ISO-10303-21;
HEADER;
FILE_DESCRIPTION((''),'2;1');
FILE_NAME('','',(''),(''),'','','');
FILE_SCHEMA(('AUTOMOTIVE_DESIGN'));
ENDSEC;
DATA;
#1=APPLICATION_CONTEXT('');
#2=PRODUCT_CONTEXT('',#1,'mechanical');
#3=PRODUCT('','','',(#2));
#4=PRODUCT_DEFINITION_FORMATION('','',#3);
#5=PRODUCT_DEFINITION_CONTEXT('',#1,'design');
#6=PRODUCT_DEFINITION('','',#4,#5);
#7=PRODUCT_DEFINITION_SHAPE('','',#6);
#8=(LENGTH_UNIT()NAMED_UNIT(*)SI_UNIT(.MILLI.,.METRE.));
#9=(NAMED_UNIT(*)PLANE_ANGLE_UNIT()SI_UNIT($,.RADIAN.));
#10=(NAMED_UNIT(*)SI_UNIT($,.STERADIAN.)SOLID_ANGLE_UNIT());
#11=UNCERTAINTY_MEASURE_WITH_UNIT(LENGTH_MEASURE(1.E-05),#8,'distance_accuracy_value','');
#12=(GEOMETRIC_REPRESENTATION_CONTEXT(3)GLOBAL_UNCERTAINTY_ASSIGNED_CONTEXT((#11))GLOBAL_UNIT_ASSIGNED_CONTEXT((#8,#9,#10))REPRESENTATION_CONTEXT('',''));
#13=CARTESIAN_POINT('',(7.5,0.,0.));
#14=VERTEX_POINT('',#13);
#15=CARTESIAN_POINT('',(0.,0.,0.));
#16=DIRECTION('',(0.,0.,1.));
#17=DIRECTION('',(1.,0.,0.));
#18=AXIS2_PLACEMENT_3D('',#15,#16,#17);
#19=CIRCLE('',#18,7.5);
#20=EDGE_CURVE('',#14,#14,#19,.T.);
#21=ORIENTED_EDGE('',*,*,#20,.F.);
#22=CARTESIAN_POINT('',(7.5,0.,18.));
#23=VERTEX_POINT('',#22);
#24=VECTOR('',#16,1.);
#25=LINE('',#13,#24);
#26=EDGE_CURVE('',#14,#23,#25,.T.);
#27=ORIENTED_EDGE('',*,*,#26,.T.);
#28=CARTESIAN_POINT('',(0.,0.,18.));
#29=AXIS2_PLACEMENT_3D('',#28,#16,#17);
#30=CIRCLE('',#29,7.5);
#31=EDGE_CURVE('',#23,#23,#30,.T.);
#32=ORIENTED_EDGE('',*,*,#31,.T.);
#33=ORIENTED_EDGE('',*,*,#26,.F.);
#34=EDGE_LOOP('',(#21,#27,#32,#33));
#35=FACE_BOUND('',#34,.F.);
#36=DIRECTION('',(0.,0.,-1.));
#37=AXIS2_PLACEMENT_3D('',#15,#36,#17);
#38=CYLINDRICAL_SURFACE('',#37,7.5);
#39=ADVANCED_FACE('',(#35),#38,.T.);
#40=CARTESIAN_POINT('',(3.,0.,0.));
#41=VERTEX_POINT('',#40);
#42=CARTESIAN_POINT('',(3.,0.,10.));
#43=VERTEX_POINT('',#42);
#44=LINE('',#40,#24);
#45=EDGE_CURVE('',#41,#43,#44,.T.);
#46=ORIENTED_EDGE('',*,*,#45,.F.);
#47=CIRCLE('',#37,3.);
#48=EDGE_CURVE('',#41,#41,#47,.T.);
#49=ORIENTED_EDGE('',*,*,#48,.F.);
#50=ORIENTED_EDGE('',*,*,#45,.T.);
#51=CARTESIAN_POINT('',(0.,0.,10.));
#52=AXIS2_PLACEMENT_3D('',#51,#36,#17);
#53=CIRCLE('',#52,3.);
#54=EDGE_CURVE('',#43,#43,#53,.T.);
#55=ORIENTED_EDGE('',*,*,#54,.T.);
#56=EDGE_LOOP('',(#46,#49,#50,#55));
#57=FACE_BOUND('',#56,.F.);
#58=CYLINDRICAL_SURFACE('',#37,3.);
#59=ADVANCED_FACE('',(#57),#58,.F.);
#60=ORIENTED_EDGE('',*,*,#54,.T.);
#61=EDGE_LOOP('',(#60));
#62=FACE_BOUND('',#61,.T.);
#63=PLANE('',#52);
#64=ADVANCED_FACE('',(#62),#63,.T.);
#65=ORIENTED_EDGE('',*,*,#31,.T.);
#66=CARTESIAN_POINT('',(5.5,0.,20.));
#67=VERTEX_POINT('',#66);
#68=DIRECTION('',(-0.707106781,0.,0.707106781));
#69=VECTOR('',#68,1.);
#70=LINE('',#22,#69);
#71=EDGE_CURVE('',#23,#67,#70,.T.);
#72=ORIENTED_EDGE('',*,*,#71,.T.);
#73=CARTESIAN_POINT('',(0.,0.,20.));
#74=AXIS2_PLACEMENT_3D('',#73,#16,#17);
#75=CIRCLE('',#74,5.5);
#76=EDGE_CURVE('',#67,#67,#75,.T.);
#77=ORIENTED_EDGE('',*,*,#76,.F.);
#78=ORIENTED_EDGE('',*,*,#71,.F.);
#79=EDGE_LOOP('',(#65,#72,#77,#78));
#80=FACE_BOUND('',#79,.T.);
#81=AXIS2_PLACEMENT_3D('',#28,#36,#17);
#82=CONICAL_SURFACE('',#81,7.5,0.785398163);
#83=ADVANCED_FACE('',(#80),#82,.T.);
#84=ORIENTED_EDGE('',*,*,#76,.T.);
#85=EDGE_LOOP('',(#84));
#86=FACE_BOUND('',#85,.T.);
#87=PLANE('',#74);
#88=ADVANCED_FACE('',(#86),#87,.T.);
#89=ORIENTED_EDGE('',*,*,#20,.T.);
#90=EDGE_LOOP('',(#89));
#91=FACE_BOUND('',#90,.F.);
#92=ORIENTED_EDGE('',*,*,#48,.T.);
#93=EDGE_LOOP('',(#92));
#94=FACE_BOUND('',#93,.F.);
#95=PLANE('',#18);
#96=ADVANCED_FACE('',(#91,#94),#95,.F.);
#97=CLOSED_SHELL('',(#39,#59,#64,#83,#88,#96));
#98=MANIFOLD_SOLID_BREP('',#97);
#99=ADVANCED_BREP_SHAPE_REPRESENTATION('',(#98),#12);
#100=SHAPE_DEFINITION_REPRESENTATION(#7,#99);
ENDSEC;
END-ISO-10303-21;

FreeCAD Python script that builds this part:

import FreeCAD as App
import Part
import Sketcher

V = App.Vector
Q = App.Units.Quantity


def edges_at(feature, points):
    """Names of the edges that pass closest to the given points."""
    edges = feature.Shape.Edges
    near = lambda p: min(range(len(edges)), key=lambda i: edges[i].distToShape(Part.Vertex(*p))[0])
    return sorted({f"Edge{near(p) + 1}" for p in points})

doc = App.newDocument("Part")
body = doc.addObject("PartDesign::Body", "Body")

sketch1 = doc.addObject("Sketcher::SketchObject", "Sketch")
body.addObject(sketch1)
sketch1.AttachmentSupport = (doc.XY_Plane, [""])
sketch1.MapMode = "FlatFace"
sketch1.addGeometry(Part.Circle(V(0, 0, 0), V(0, 0, 1), 8), False)
sketch1.addConstraint([
    Sketcher.Constraint("Coincident", 0, 3, -1, 1),
    Sketcher.Constraint("Diameter", 0, Q("15 mm")),
])
pad1 = doc.addObject("PartDesign::Pad", "Pad")
body.addObject(pad1)
pad1.Profile = sketch1
pad1.Length = 20
doc.recompute()

chamfer = doc.addObject("PartDesign::Chamfer", "Chamfer")
body.addObject(chamfer)
chamfer.Base = (pad1, edges_at(pad1, [(-7.5, 0, 20)]))
chamfer.Size = 2

sketch2 = doc.addObject("Sketcher::SketchObject", "Sketch001")
body.addObject(sketch2)
sketch2.AttachmentSupport = (doc.XY_Plane, [""])
sketch2.MapMode = "FlatFace"
sketch2.addGeometry(Part.Circle(V(0, 0, 0), V(0, 0, 1), 3), False)
sketch2.addConstraint([
    Sketcher.Constraint("Coincident", 0, 3, -1, 1),
    Sketcher.Constraint("Diameter", 0, Q("6 mm")),
])
pocket1 = doc.addObject("PartDesign::Pocket", "Pocket")
body.addObject(pocket1)
pocket1.Profile = sketch2
pocket1.Length = 10
pocket1.Reversed = True

doc.recompute()
